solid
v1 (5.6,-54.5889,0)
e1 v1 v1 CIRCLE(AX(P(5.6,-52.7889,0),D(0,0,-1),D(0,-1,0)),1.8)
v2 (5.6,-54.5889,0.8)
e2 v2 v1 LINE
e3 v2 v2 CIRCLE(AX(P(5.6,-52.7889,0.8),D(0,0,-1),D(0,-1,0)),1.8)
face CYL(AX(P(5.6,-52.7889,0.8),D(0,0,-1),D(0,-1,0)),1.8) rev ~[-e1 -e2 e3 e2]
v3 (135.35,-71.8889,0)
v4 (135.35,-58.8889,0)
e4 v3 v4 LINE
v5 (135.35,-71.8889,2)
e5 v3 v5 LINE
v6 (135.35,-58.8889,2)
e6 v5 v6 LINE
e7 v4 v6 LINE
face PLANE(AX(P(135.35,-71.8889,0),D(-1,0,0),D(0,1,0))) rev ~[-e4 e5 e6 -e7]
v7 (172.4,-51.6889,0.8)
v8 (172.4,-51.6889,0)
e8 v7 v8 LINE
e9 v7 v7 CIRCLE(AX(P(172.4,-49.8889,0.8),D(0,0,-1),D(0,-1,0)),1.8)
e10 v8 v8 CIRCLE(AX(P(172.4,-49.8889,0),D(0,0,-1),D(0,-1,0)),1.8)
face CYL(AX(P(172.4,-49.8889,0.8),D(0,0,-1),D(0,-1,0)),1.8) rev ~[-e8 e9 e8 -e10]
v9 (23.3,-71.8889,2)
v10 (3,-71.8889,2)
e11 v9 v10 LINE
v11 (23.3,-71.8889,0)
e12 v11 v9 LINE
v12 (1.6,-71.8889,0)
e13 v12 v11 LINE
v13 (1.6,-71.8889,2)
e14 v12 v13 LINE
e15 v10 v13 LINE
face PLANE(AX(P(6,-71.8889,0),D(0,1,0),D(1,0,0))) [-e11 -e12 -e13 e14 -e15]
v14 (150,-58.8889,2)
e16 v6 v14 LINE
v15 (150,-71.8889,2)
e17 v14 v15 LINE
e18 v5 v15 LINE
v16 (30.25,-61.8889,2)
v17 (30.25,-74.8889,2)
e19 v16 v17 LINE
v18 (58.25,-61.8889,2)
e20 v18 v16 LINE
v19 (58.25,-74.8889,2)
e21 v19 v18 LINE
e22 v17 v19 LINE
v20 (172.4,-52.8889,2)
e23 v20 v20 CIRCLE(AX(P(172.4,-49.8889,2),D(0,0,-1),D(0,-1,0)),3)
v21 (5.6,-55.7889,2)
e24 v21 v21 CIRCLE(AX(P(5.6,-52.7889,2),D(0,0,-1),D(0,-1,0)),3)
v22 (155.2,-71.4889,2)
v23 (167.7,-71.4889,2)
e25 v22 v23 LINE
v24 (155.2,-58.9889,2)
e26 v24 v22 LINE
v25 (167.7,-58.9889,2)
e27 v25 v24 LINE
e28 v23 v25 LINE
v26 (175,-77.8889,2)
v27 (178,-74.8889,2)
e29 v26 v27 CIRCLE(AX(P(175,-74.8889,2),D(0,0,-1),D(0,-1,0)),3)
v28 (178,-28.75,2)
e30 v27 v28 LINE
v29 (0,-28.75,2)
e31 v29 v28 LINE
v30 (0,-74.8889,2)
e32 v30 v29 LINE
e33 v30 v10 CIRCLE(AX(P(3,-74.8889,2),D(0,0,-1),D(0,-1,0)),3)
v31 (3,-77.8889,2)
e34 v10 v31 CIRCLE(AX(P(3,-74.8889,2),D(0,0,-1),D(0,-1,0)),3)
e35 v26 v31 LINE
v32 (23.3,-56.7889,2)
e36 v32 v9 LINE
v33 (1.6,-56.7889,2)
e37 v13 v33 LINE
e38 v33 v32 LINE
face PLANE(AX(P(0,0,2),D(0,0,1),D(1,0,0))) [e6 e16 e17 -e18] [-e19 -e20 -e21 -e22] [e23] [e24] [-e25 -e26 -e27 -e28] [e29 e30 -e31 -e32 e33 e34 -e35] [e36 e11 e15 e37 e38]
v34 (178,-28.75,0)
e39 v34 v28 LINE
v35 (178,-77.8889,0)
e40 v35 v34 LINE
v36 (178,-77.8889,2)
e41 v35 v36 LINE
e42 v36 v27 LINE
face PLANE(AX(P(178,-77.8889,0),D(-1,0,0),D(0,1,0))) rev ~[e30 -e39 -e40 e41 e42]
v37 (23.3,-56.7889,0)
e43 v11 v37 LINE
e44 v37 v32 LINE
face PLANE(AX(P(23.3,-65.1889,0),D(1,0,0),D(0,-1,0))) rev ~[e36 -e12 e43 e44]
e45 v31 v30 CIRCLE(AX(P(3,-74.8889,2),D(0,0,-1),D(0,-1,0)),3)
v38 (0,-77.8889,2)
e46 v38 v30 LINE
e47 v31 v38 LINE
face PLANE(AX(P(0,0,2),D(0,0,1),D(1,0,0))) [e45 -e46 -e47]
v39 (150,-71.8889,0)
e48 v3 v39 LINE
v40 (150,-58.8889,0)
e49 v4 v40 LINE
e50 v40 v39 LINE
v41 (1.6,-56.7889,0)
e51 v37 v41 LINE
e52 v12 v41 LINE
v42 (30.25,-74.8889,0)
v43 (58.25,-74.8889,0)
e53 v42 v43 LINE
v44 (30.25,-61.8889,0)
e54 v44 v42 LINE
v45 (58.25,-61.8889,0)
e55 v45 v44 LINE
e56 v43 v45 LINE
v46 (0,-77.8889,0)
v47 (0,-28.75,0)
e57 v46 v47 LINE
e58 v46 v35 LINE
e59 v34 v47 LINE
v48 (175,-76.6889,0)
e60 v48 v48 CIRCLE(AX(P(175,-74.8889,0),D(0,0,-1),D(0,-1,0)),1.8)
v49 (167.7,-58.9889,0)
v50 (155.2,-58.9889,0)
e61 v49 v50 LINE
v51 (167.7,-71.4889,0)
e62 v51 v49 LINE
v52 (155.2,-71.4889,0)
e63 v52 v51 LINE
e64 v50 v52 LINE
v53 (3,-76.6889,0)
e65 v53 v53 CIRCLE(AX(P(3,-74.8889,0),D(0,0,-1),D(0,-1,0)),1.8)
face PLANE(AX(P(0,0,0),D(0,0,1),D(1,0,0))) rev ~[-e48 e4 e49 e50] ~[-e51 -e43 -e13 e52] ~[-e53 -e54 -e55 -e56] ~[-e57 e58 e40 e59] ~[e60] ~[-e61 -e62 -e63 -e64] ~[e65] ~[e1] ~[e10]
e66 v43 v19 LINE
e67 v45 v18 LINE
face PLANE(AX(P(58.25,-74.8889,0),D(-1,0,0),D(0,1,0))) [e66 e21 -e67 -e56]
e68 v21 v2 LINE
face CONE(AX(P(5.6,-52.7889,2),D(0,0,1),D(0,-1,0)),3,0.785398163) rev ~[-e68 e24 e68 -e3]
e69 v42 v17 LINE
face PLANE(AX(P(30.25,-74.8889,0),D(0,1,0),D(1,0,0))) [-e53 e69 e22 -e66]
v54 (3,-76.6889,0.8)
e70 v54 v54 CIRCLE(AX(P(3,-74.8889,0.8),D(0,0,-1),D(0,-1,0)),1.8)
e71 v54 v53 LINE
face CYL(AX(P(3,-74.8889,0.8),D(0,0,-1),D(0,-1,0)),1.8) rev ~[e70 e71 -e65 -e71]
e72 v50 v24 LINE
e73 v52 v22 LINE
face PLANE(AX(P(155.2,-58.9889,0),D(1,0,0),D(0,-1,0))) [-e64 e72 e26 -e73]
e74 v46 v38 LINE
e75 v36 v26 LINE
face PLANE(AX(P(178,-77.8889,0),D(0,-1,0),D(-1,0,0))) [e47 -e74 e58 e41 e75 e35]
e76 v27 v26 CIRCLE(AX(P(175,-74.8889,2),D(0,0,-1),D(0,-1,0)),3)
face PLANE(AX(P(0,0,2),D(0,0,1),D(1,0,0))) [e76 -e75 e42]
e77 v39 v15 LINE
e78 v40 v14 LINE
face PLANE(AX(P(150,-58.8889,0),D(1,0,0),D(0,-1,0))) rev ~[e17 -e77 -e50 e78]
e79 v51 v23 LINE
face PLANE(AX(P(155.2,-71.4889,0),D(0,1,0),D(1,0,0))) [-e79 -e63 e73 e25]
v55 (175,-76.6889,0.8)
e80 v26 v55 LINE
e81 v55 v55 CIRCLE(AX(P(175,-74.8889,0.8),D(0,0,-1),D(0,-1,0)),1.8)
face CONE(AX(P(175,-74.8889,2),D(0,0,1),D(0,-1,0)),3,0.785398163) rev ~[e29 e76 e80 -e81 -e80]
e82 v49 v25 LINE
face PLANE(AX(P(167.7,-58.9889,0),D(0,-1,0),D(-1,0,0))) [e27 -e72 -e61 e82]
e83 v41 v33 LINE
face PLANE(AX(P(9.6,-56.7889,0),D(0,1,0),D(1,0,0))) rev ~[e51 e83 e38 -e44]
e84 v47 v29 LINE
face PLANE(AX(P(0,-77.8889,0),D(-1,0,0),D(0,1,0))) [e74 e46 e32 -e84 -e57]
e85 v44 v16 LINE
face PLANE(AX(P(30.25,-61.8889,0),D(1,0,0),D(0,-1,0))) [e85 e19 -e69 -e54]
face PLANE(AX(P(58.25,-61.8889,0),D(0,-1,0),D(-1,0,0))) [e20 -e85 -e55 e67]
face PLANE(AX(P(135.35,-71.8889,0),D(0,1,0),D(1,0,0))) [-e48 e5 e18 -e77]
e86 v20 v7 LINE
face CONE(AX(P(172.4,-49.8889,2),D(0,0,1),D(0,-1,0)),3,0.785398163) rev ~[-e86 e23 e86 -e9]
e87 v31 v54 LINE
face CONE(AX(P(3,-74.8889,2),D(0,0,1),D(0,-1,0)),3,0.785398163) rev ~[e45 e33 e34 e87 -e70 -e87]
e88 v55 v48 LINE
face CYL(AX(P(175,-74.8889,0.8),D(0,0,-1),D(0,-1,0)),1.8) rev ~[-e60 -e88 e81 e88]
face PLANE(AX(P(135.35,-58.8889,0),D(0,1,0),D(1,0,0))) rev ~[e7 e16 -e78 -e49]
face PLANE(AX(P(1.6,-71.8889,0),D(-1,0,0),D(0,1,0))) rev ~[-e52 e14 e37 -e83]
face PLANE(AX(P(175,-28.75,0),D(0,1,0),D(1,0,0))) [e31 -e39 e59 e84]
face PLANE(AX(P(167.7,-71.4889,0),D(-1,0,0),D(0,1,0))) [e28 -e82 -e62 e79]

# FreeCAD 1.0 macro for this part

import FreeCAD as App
import Part
import Sketcher
Q = App.Units.Quantity

doc = App.newDocument("Part")
params = doc.addObject("Spreadsheet::Sheet", "Params")
for row, (alias, value) in enumerate([
    ("sketch1_width", "178 mm"),
    ("sketch1_width2", "28 mm"),
    ("sketch1_height", "13 mm"),
    ("sketch1_width3", "21.7 mm"),
    ("sketch1_width4", "12.5 mm"),
    ("pad1_length", "2 mm"),
    ("sketch2_diameter", "3.6 mm"),
    ("hole_diameter", "3.6 mm"),
    ("hole_csink_diameter", "6 mm"),
], start=1):
    params.set(f"A{row}", alias)
    params.set(f"B{row}", "=" + value)
    params.setAlias(f"B{row}", alias)

body = doc.addObject("PartDesign::Body", "Body")

sketch1 = doc.addObject("Sketcher::SketchObject", "Sketch")
body.addObject(sketch1)
sketch1.AttachmentSupport = (doc.XY_Plane, [""])
sketch1.MapMode = "FlatFace"
sketch1.addGeometry(Part.LineSegment(App.Vector(178, -77.8889, 0), App.Vector(178, -28.75, 0)), False)
sketch1.addGeometry(Part.LineSegment(App.Vector(178, -28.75, 0), App.Vector(0, -28.75, 0)), False)
sketch1.addGeometry(Part.LineSegment(App.Vector(0, -28.75, 0), App.Vector(0, -77.8889, 0)), False)
sketch1.addGeometry(Part.LineSegment(App.Vector(0, -77.8889, 0), App.Vector(178, -77.8889, 0)), False)
sketch1.addGeometry(Part.LineSegment(App.Vector(30.25, -74.8889, 0), App.Vector(30.25, -61.8889, 0)), False)
sketch1.addGeometry(Part.LineSegment(App.Vector(30.25, -61.8889, 0), App.Vector(58.25, -61.8889, 0)), False)
sketch1.addGeometry(Part.LineSegment(App.Vector(58.25, -61.8889, 0), App.Vector(58.25, -74.8889, 0)), False)
sketch1.addGeometry(Part.LineSegment(App.Vector(58.25, -74.8889, 0), App.Vector(30.25, -74.8889, 0)), False)
sketch1.addGeometry(Part.LineSegment(App.Vector(150, -71.8889, 0), App.Vector(135.35, -71.8889, 0)), False)
sketch1.addGeometry(Part.LineSegment(App.Vector(135.35, -71.8889, 0), App.Vector(135.35, -58.8889, 0)), False)
sketch1.addGeometry(Part.LineSegment(App.Vector(135.35, -58.8889, 0), App.Vector(150, -58.8889, 0)), False)
sketch1.addGeometry(Part.LineSegment(App.Vector(150, -58.8889, 0), App.Vector(150, -71.8889, 0)), False)
sketch1.addGeometry(Part.LineSegment(App.Vector(23.3, -71.8889, 0), App.Vector(1.6, -71.8889, 0)), False)
sketch1.addGeometry(Part.LineSegment(App.Vector(1.6, -71.8889, 0), App.Vector(1.6, -56.7889, 0)), False)
sketch1.addGeometry(Part.LineSegment(App.Vector(1.6, -56.7889, 0), App.Vector(23.3, -56.7889, 0)), False)
sketch1.addGeometry(Part.LineSegment(App.Vector(23.3, -56.7889, 0), App.Vector(23.3, -71.8889, 0)), False)
sketch1.addGeometry(Part.LineSegment(App.Vector(155.2, -71.4889, 0), App.Vector(155.2, -58.9889, 0)), False)
sketch1.addGeometry(Part.LineSegment(App.Vector(155.2, -58.9889, 0), App.Vector(167.7, -58.9889, 0)), False)
sketch1.addGeometry(Part.LineSegment(App.Vector(167.7, -58.9889, 0), App.Vector(167.7, -71.4889, 0)), False)
sketch1.addGeometry(Part.LineSegment(App.Vector(167.7, -71.4889, 0), App.Vector(155.2, -71.4889, 0)), False)
sketch1.addConstraint(Sketcher.Constraint("Coincident", 0, 2, 1, 1))
sketch1.addConstraint(Sketcher.Constraint("Coincident", 1, 2, 2, 1))
sketch1.addConstraint(Sketcher.Constraint("Coincident", 2, 2, 3, 1))
sketch1.addConstraint(Sketcher.Constraint("Coincident", 3, 2, 0, 1))
sketch1.addConstraint(Sketcher.Constraint("Coincident", 4, 2, 5, 1))
sketch1.addConstraint(Sketcher.Constraint("Coincident", 5, 2, 6, 1))
sketch1.addConstraint(Sketcher.Constraint("Coincident", 6, 2, 7, 1))
sketch1.addConstraint(Sketcher.Constraint("Coincident", 7, 2, 4, 1))
sketch1.addConstraint(Sketcher.Constraint("Coincident", 8, 2, 9, 1))
sketch1.addConstraint(Sketcher.Constraint("Coincident", 9, 2, 10, 1))
sketch1.addConstraint(Sketcher.Constraint("Coincident", 10, 2, 11, 1))
sketch1.addConstraint(Sketcher.Constraint("Coincident", 11, 2, 8, 1))
sketch1.addConstraint(Sketcher.Constraint("Coincident", 12, 2, 13, 1))
sketch1.addConstraint(Sketcher.Constraint("Coincident", 13, 2, 14, 1))
sketch1.addConstraint(Sketcher.Constraint("Coincident", 14, 2, 15, 1))
sketch1.addConstraint(Sketcher.Constraint("Coincident", 15, 2, 12, 1))
sketch1.addConstraint(Sketcher.Constraint("Coincident", 16, 2, 17, 1))
sketch1.addConstraint(Sketcher.Constraint("Coincident", 17, 2, 18, 1))
sketch1.addConstraint(Sketcher.Constraint("Coincident", 18, 2, 19, 1))
sketch1.addConstraint(Sketcher.Constraint("Coincident", 19, 2, 16, 1))
sketch1.addConstraint(Sketcher.Constraint("Vertical", 0))
sketch1.addConstraint(Sketcher.Constraint("Horizontal", 1))
sketch1.addConstraint(Sketcher.Constraint("Vertical", 2))
sketch1.addConstraint(Sketcher.Constraint("Horizontal", 3))
sketch1.addConstraint(Sketcher.Constraint("Vertical", 4))
sketch1.addConstraint(Sketcher.Constraint("Horizontal", 5))
sketch1.addConstraint(Sketcher.Constraint("Vertical", 6))
sketch1.addConstraint(Sketcher.Constraint("Horizontal", 7))
sketch1.addConstraint(Sketcher.Constraint("Horizontal", 8))
sketch1.addConstraint(Sketcher.Constraint("Vertical", 9))
sketch1.addConstraint(Sketcher.Constraint("Horizontal", 10))
sketch1.addConstraint(Sketcher.Constraint("Vertical", 11))
sketch1.addConstraint(Sketcher.Constraint("Horizontal", 12))
sketch1.addConstraint(Sketcher.Constraint("Vertical", 13))
sketch1.addConstraint(Sketcher.Constraint("Horizontal", 14))
sketch1.addConstraint(Sketcher.Constraint("Vertical", 15))
sketch1.addConstraint(Sketcher.Constraint("Vertical", 16))
sketch1.addConstraint(Sketcher.Constraint("Horizontal", 17))
sketch1.addConstraint(Sketcher.Constraint("Vertical", 18))
sketch1.addConstraint(Sketcher.Constraint("Horizontal", 19))
sketch1.addConstraint(Sketcher.Constraint("PointOnObject", 1, 2, -2))
sketch1.addConstraint(Sketcher.Constraint("Horizontal", 11, 2, 12, 2))
sketch1.addConstraint(Sketcher.Constraint("Equal", 6, 9))
sketch1.addConstraint(Sketcher.Constraint("Equal", 19, 16))
sketch1.addConstraint(Sketcher.Constraint("DistanceX", 1, 2, 1, 1, Q("178 mm")))
sketch1.addConstraint(Sketcher.Constraint("DistanceX", 5, 1, 5, 2, Q("28 mm")))
sketch1.addConstraint(Sketcher.Constraint("DistanceY", 4, 1, 4, 2, Q("13 mm")))
sketch1.addConstraint(Sketcher.Constraint("DistanceX", 12, 2, 12, 1, Q("21.7 mm")))
sketch1.addConstraint(Sketcher.Constraint("DistanceX", 17, 1, 17, 2, Q("12.5 mm")))
sketch1.addConstraint(Sketcher.Constraint("DistanceY", 13, 1, 13, 2, Q("15.1 mm")))
sketch1.addConstraint(Sketcher.Constraint("DistanceX", -1, 1, 10, 2, Q("150 mm")))
sketch1.addConstraint(Sketcher.Constraint("DistanceY", 2, 2, 4, 2, Q("16 mm")))
sketch1.addConstraint(Sketcher.Constraint("DistanceY", 3, 2, 8, 2, Q("6 mm")))
sketch1.addConstraint(Sketcher.Constraint("DistanceX", 8, 2, 8, 1, Q("14.65 mm")))
sketch1.addConstraint(Sketcher.Constraint("DistanceX", -1, 1, 12, 2, Q("1.6 mm")))
sketch1.addConstraint(Sketcher.Constraint("DistanceX", -1, 1, 16, 2, Q("155.2 mm")))
sketch1.addConstraint(Sketcher.Constraint("DistanceX", 6, 2, 8, 2, Q("77.1 mm")))
sketch1.addConstraint(Sketcher.Constraint("DistanceY", 16, 2, 10, 2, Q("0.1 mm")))
sketch1.addConstraint(Sketcher.Constraint("DistanceY", 0, 1, 0, 2, Q("49.139 mm")))
sketch1.addConstraint(Sketcher.Constraint("DistanceY", 0, 2, -1, 1, Q("28.75 mm")))
sketch1.setExpression("Constraints[44]", "Params.sketch1_width")
sketch1.setExpression("Constraints[45]", "Params.sketch1_width2")
sketch1.setExpression("Constraints[46]", "Params.sketch1_height")
sketch1.setExpression("Constraints[47]", "Params.sketch1_width3")
sketch1.setExpression("Constraints[48]", "Params.sketch1_width4")
pad1 = doc.addObject("PartDesign::Pad", "Pad")
body.addObject(pad1)
pad1.Profile = sketch1
pad1.setExpression("Length", "Params.pad1_length")

sketch2 = doc.addObject("Sketcher::SketchObject", "Sketch001")
body.addObject(sketch2)
sketch2.AttachmentSupport = (doc.XY_Plane, [""])
sketch2.MapMode = "FlatFace"
sketch2.AttachmentOffset = App.Placement(App.Vector(0, 0, 2), App.Rotation())
sketch2.addGeometry(Part.Circle(App.Vector(5.6, -52.7889, 0), App.Vector(0, 0, 1), 1.8), False)
sketch2.addGeometry(Part.Circle(App.Vector(3, -74.8889, 0), App.Vector(0, 0, 1), 1.8), False)
sketch2.addGeometry(Part.Circle(App.Vector(175, -74.8889, 0), App.Vector(0, 0, 1), 1.8), False)
sketch2.addGeometry(Part.Circle(App.Vector(172.4, -49.8889, 0), App.Vector(0, 0, 1), 1.8), False)
sketch2.addConstraint(Sketcher.Constraint("Equal", 0, 1))
sketch2.addConstraint(Sketcher.Constraint("Equal", 1, 2))
sketch2.addConstraint(Sketcher.Constraint("Equal", 2, 3))
sketch2.addConstraint(Sketcher.Constraint("Horizontal", 1, 3, 2, 3))
sketch2.addConstraint(Sketcher.Constraint("Diameter", 0, Q("3.6 mm")))
sketch2.addConstraint(Sketcher.Constraint("DistanceX", -1, 1, 1, 3, Q("3 mm")))
sketch2.addConstraint(Sketcher.Constraint("DistanceX", -1, 1, 2, 3, Q("175 mm")))
sketch2.addConstraint(Sketcher.Constraint("DistanceY", 2, 3, 3, 3, Q("25 mm")))
sketch2.addConstraint(Sketcher.Constraint("DistanceX", -1, 1, 0, 3, Q("5.6 mm")))
sketch2.addConstraint(Sketcher.Constraint("DistanceX", -1, 1, 3, 3, Q("172.4 mm")))
sketch2.addConstraint(Sketcher.Constraint("DistanceY", 1, 3, 0, 3, Q("22.1 mm")))
sketch2.addConstraint(Sketcher.Constraint("DistanceY", 0, 3, -1, 1, Q("52.789 mm")))
sketch2.setExpression("Constraints[4]", "Params.sketch2_diameter")
doc.recompute()
hole = doc.addObject("PartDesign::Hole", "Hole")
body.addObject(hole)
hole.Profile = sketch2
hole.ThreadType = "None"
hole.setExpression("Diameter", "Params.hole_diameter")
hole.DepthType = "ThroughAll"
hole.HoleCutType = "Countersink"
hole.setExpression("HoleCutDiameter", "Params.hole_csink_diameter")
hole.HoleCutCountersinkAngle = 90

doc.recompute()
